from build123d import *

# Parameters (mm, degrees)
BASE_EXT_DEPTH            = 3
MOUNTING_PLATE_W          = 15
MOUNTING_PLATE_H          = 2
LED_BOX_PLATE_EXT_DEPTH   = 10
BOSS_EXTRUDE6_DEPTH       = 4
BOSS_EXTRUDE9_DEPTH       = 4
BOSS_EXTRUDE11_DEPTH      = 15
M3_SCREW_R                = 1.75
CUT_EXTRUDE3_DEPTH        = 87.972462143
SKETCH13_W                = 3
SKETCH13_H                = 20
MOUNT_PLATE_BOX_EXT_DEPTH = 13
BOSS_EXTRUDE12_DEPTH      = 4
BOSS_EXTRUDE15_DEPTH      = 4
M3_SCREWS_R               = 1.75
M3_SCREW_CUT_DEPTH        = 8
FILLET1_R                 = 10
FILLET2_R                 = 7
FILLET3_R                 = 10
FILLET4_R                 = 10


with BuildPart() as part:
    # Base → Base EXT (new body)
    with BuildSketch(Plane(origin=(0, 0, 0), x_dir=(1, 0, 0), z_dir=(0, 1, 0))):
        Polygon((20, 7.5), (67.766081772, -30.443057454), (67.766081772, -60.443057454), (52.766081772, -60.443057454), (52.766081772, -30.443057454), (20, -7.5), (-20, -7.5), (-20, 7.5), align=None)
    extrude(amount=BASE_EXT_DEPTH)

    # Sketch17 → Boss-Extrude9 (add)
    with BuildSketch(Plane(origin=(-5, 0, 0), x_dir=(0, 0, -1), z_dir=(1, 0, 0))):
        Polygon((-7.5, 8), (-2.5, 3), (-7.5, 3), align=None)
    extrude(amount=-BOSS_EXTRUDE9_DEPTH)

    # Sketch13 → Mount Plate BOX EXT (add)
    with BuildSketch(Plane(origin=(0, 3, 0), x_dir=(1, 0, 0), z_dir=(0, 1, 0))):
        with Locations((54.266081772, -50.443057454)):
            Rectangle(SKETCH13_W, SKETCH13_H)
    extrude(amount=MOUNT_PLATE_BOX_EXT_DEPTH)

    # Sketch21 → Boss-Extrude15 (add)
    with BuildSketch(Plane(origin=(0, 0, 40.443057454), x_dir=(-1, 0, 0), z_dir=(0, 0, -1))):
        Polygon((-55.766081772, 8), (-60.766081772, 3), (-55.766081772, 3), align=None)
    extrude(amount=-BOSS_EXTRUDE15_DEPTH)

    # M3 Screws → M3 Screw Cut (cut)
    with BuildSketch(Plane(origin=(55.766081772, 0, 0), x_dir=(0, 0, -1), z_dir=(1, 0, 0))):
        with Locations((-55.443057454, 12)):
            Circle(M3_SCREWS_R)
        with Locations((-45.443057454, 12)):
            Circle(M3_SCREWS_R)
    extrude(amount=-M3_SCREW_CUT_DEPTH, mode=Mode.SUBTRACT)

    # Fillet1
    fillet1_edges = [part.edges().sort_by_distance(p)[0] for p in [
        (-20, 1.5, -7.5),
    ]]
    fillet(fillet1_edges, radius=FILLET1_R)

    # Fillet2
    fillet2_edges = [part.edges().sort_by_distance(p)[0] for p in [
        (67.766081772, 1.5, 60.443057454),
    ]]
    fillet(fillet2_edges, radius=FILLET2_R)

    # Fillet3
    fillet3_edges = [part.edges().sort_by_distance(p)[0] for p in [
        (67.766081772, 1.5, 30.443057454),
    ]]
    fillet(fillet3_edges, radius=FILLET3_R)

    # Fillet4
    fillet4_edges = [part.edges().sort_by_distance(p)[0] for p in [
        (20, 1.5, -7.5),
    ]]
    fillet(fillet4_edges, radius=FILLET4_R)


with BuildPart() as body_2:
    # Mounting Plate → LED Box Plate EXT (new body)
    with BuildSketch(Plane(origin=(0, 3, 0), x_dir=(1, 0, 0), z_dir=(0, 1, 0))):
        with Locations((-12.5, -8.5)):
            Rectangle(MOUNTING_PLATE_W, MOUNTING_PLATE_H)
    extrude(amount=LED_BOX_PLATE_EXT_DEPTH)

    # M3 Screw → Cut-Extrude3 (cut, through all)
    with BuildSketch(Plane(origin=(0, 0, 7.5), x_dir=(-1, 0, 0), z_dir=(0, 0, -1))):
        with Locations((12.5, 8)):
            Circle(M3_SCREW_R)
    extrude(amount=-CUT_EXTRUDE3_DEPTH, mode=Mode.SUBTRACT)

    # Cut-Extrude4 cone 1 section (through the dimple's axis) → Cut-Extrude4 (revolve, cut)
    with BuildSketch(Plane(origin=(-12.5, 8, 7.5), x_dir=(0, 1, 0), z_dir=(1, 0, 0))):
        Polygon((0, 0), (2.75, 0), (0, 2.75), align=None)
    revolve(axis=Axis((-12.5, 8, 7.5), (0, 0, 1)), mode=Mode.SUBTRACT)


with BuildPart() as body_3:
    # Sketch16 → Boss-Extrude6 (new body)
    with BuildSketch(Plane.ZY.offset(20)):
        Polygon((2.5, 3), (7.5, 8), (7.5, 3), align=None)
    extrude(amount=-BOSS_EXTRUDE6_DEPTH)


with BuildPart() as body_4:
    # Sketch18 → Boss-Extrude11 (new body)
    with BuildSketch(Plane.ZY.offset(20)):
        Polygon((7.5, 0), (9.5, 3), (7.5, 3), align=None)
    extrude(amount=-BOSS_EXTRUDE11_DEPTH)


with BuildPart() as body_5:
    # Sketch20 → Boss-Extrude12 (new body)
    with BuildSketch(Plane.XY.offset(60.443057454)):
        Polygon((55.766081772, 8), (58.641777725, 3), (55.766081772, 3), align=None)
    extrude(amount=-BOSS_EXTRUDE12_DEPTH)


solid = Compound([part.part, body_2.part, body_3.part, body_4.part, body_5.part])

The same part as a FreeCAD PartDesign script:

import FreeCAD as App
import Part
import Sketcher
from FreeCAD import Vector
Q = App.Units.Quantity


def edges_at(feature, points):
    """Names of the edges that pass closest to the given points."""
    edges = feature.Shape.Edges
    near = lambda p: min(range(len(edges)), key=lambda i: edges[i].distToShape(Part.Vertex(*p))[0])
    return sorted({f"Edge{near(p) + 1}" for p in points})

doc = App.newDocument("Part")
body = doc.addObject("PartDesign::Body", "Body")

# Sketch on XZ plane
sketch1 = body.newObject("Sketcher::SketchObject", "Sketch")
sketch1.AttachmentSupport = (doc.getObject("XZ_Plane"), [""])
sketch1.MapMode = "FlatFace"
sketch1.addGeometry(Part.LineSegment(Vector(68, 30, 0), Vector(20, -8, 0)), False)
sketch1.addGeometry(Part.LineSegment(Vector(20, -8, 0), Vector(-20, -8, 0)), False)
sketch1.addGeometry(Part.LineSegment(Vector(-20, -8, 0), Vector(-20, 8, 0)), False)
sketch1.addGeometry(Part.LineSegment(Vector(-20, 8, 0), Vector(20, 8, 0)), False)
sketch1.addGeometry(Part.LineSegment(Vector(20, 8, 0), Vector(53, 30, 0)), False)
sketch1.addGeometry(Part.LineSegment(Vector(53, 30, 0), Vector(53, 60, 0)), False)
sketch1.addGeometry(Part.LineSegment(Vector(53, 60, 0), Vector(68, 60, 0)), False)
sketch1.addGeometry(Part.LineSegment(Vector(68, 60, 0), Vector(68, 30, 0)), False)
sketch1.addConstraint(Sketcher.Constraint("Coincident", 0, 2, 1, 1))
sketch1.addConstraint(Sketcher.Constraint("Coincident", 1, 2, 2, 1))
sketch1.addConstraint(Sketcher.Constraint("Coincident", 2, 2, 3, 1))
sketch1.addConstraint(Sketcher.Constraint("Coincident", 3, 2, 4, 1))
sketch1.addConstraint(Sketcher.Constraint("Coincident", 4, 2, 5, 1))
sketch1.addConstraint(Sketcher.Constraint("Coincident", 5, 2, 6, 1))
sketch1.addConstraint(Sketcher.Constraint("Coincident", 6, 2, 7, 1))
sketch1.addConstraint(Sketcher.Constraint("Coincident", 7, 2, 0, 1))
sketch1.addConstraint(Sketcher.Constraint("Horizontal", 1))
sketch1.addConstraint(Sketcher.Constraint("Vertical", 2))
sketch1.addConstraint(Sketcher.Constraint("Horizontal", 3))
sketch1.addConstraint(Sketcher.Constraint("Vertical", 5))
sketch1.addConstraint(Sketcher.Constraint("Horizontal", 6))
sketch1.addConstraint(Sketcher.Constraint("Vertical", 7))
sketch1.addConstraint(Sketcher.Constraint("Symmetric", 0, 2, 2, 2, -1, 1))
sketch1.addConstraint(Sketcher.Constraint("Horizontal", 4, 2, 7, 2))
sketch1.addConstraint(Sketcher.Constraint("Vertical", 0, 2, 3, 2))
sketch1.addConstraint(Sketcher.Constraint("Equal", 6, 2))
sketch1.addConstraint(Sketcher.Constraint("DistanceX", 1, 2, 1, 1, 40.0))
sketch1.addConstraint(Sketcher.Constraint("DistanceX", 6, 1, 6, 2, 15.0))
sketch1.addConstraint(Sketcher.Constraint("DistanceY", 5, 1, 5, 2, 30.0))
sketch1.addConstraint(Sketcher.Constraint("Angle", 4, Q("35 deg")))
sketch1.addConstraint(Sketcher.Constraint("Distance", 4, 40.0))
pad1 = body.newObject("PartDesign::Pad", "Pad")
pad1.Profile = sketch1
pad1.Length = 3
pad1.Reversed = True

# Sketch on YZ plane
sketch2 = body.newObject("Sketcher::SketchObject", "Sketch001")
sketch2.AttachmentSupport = (doc.getObject("YZ_Plane"), [""])
sketch2.MapMode = "FlatFace"
sketch2.AttachmentOffset = App.Placement(Vector(0, 0, -5), App.Rotation())
sketch2.addGeometry(Part.LineSegment(Vector(3, 2, 0), Vector(8, 8, 0)), False)
sketch2.addGeometry(Part.LineSegment(Vector(8, 8, 0), Vector(3, 8, 0)), False)
sketch2.addGeometry(Part.LineSegment(Vector(3, 8, 0), Vector(3, 2, 0)), False)
sketch2.addConstraint(Sketcher.Constraint("Coincident", 0, 2, 1, 1))
sketch2.addConstraint(Sketcher.Constraint("Coincident", 1, 2, 2, 1))
sketch2.addConstraint(Sketcher.Constraint("Coincident", 2, 2, 0, 1))
sketch2.addConstraint(Sketcher.Constraint("Horizontal", 1))
sketch2.addConstraint(Sketcher.Constraint("Vertical", 2))
sketch2.addConstraint(Sketcher.Constraint("Equal", 1, 2))
sketch2.addConstraint(Sketcher.Constraint("DistanceX", 1, 2, 1, 1, 5.0))
sketch2.addConstraint(Sketcher.Constraint("DistanceX", -1, 1, 0, 2, 8.0))
sketch2.addConstraint(Sketcher.Constraint("DistanceY", -1, 1, 0, 2, 7.5))
pad2 = body.newObject("PartDesign::Pad", "Pad001")
pad2.Profile = sketch2
pad2.Length = 4
pad2.Reversed = True

# Sketch on XZ plane
sketch3 = body.newObject("Sketcher::SketchObject", "Sketch002")
sketch3.AttachmentSupport = (doc.getObject("XZ_Plane"), [""])
sketch3.MapMode = "FlatFace"
sketch3.AttachmentOffset = App.Placement(Vector(0, 0, -3), App.Rotation())
sketch3.addGeometry(Part.LineSegment(Vector(52.8, 40.4, 0), Vector(52.8, 60.4, 0)), False)
sketch3.addGeometry(Part.LineSegment(Vector(52.8, 60.4, 0), Vector(55.8, 60.4, 0)), False)
sketch3.addGeometry(Part.LineSegment(Vector(55.8, 60.4, 0), Vector(55.8, 40.4, 0)), False)
sketch3.addGeometry(Part.LineSegment(Vector(55.8, 40.4, 0), Vector(52.8, 40.4, 0)), False)
sketch3.addConstraint(Sketcher.Constraint("Coincident", 0, 2, 1, 1))
sketch3.addConstraint(Sketcher.Constraint("Coincident", 1, 2, 2, 1))
sketch3.addConstraint(Sketcher.Constraint("Coincident", 2, 2, 3, 1))
sketch3.addConstraint(Sketcher.Constraint("Coincident", 3, 2, 0, 1))
sketch3.addConstraint(Sketcher.Constraint("Vertical", 0))
sketch3.addConstraint(Sketcher.Constraint("Horizontal", 1))
sketch3.addConstraint(Sketcher.Constraint("Vertical", 2))
sketch3.addConstraint(Sketcher.Constraint("Horizontal", 3))
sketch3.addConstraint(Sketcher.Constraint("DistanceX", 1, 1, 1, 2, 3.0))
sketch3.addConstraint(Sketcher.Constraint("DistanceY", 0, 1, 0, 2, 20.0))
sketch3.addConstraint(Sketcher.Constraint("DistanceX", -1, 1, 0, 2, 52.766082))
sketch3.addConstraint(Sketcher.Constraint("DistanceY", -1, 1, 0, 2, 60.443057))
pad3 = body.newObject("PartDesign::Pad", "Pad002")
pad3.Profile = sketch3
pad3.Length = 13
pad3.Reversed = True

# Sketch on XY plane
sketch4 = body.newObject("Sketcher::SketchObject", "Sketch003")
sketch4.AttachmentSupport = (doc.getObject("XY_Plane"), [""])
sketch4.MapMode = "FlatFace"
sketch4.AttachmentOffset = App.Placement(Vector(0, 0, 40.443057), App.Rotation())
sketch4.addGeometry(Part.LineSegment(Vector(56, 8, 0), Vector(61, 3, 0)), False)
sketch4.addGeometry(Part.LineSegment(Vector(61, 3, 0), Vector(56, 3, 0)), False)
sketch4.addGeometry(Part.LineSegment(Vector(56, 3, 0), Vector(56, 8, 0)), False)
sketch4.addConstraint(Sketcher.Constraint("Coincident", 0, 2, 1, 1))
sketch4.addConstraint(Sketcher.Constraint("Coincident", 1, 2, 2, 1))
sketch4.addConstraint(Sketcher.Constraint("Coincident", 2, 2, 0, 1))
sketch4.addConstraint(Sketcher.Constraint("Horizontal", 1))
sketch4.addConstraint(Sketcher.Constraint("Vertical", 2))
sketch4.addConstraint(Sketcher.Constraint("Equal", 1, 2))
sketch4.addConstraint(Sketcher.Constraint("DistanceX", 1, 2, 1, 1, 5.0))
sketch4.addConstraint(Sketcher.Constraint("DistanceY", -1, 1, 0, 2, 3.0))
sketch4.addConstraint(Sketcher.Constraint("DistanceX", -1, 1, 0, 2, 60.766082))
pad4 = body.newObject("PartDesign::Pad", "Pad003")
pad4.Profile = sketch4
pad4.Length = 4

# Sketch on YZ plane
sketch5 = body.newObject("Sketcher::SketchObject", "Sketch004")
sketch5.AttachmentSupport = (doc.getObject("YZ_Plane"), [""])
sketch5.MapMode = "FlatFace"
sketch5.AttachmentOffset = App.Placement(Vector(0, 0, 55.766082), App.Rotation())
sketch5.addGeometry(Part.Circle(Vector(12, 55.4, 0), Vector(0, 0, 1), 1.8), False)
sketch5.addGeometry(Part.Circle(Vector(12, 45.4, 0), Vector(0, 0, 1), 1.8), False)
sketch5.addConstraint(Sketcher.Constraint("Equal", 0, 1))
sketch5.addConstraint(Sketcher.Constraint("Vertical", 0, 3, 1, 3))
sketch5.addConstraint(Sketcher.Constraint("Diameter", 0, 3.5))
sketch5.addConstraint(Sketcher.Constraint("DistanceX", -1, 1, 0, 3, 12.0))
sketch5.addConstraint(Sketcher.Constraint("DistanceY", 1, 3, 0, 3, 10.0))
sketch5.addConstraint(Sketcher.Constraint("DistanceY", -1, 1, 0, 3, 55.443057))
pocket1 = body.newObject("PartDesign::Pocket", "Pocket")
pocket1.Profile = sketch5
pocket1.Length = 8
doc.recompute()

fillet = body.newObject("PartDesign::Fillet", "Fillet")
fillet.Base = (pocket1, edges_at(pocket1, [(-20, 1.5, -7.5)]))
fillet.Radius = 10
doc.recompute()

fillet2 = body.newObject("PartDesign::Fillet", "Fillet001")
fillet2.Base = (fillet, edges_at(fillet, [(67.766, 1.5, 60.443)]))
fillet2.Radius = 7
doc.recompute()

fillet3 = body.newObject("PartDesign::Fillet", "Fillet002")
fillet3.Base = (fillet2, edges_at(fillet2, [(67.766, 1.5, 30.443)]))
fillet3.Radius = 10
doc.recompute()

fillet4 = body.newObject("PartDesign::Fillet", "Fillet003")
fillet4.Base = (fillet3, edges_at(fillet3, [(20, 1.5, -7.5)]))
fillet4.Radius = 10
body2 = doc.addObject("PartDesign::Body", "Body001")

# Sketch on XZ plane
sketch6 = body2.newObject("Sketcher::SketchObject", "Sketch005")
sketch6.AttachmentSupport = (doc.getObject("XZ_Plane001"), [""])
sketch6.MapMode = "FlatFace"
sketch6.AttachmentOffset = App.Placement(Vector(0, 0, -3), App.Rotation())
sketch6.addGeometry(Part.LineSegment(Vector(-20, 7.5, 0), Vector(-20, 9.5, 0)), False)
sketch6.addGeometry(Part.LineSegment(Vector(-20, 9.5, 0), Vector(-5, 9.5, 0)), False)
sketch6.addGeometry(Part.LineSegment(Vector(-5, 9.5, 0), Vector(-5, 7.5, 0)), False)
sketch6.addGeometry(Part.LineSegment(Vector(-5, 7.5, 0), Vector(-20, 7.5, 0)), False)
sketch6.addConstraint(Sketcher.Constraint("Coincident", 0, 2, 1, 1))
sketch6.addConstraint(Sketcher.Constraint("Coincident", 1, 2, 2, 1))
sketch6.addConstraint(Sketcher.Constraint("Coincident", 2, 2, 3, 1))
sketch6.addConstraint(Sketcher.Constraint("Coincident", 3, 2, 0, 1))
sketch6.addConstraint(Sketcher.Constraint("Vertical", 0))
sketch6.addConstraint(Sketcher.Constraint("Horizontal", 1))
sketch6.addConstraint(Sketcher.Constraint("Vertical", 2))
sketch6.addConstraint(Sketcher.Constraint("Horizontal", 3))
sketch6.addConstraint(Sketcher.Constraint("DistanceX", 1, 1, 1, 2, 15.0))
sketch6.addConstraint(Sketcher.Constraint("DistanceY", 0, 1, 0, 2, 2.0))
sketch6.addConstraint(Sketcher.Constraint("DistanceX", 0, 2, -1, 1, 20.0))
sketch6.addConstraint(Sketcher.Constraint("DistanceY", -1, 1, 0, 2, 9.5))
pad5 = body2.newObject("PartDesign::Pad", "Pad004")
pad5.Profile = sketch6
pad5.Length = 10
pad5.Reversed = True

# Sketch on XY plane
sketch7 = body2.newObject("Sketcher::SketchObject", "Sketch006")
sketch7.AttachmentSupport = (doc.getObject("XY_Plane001"), [""])
sketch7.MapMode = "FlatFace"
sketch7.AttachmentOffset = App.Placement(Vector(0, 0, 7.5), App.Rotation())
sketch7.addGeometry(Part.Circle(Vector(-12.5, 8, 0), Vector(0, 0, 1), 1.8), False)
sketch7.addConstraint(Sketcher.Constraint("Diameter", 0, 3.5))
sketch7.addConstraint(Sketcher.Constraint("DistanceY", -1, 1, 0, 3, 8.0))
sketch7.addConstraint(Sketcher.Constraint("DistanceX", 0, 3, -1, 1, 12.5))
pocket2 = body2.newObject("PartDesign::Pocket", "Pocket001")
pocket2.Profile = sketch7
pocket2.Type = "ThroughAll"
pocket2.Reversed = True

# Sketch on YZ plane
sketch8 = body2.newObject("Sketcher::SketchObject", "Sketch007")
sketch8.AttachmentSupport = (doc.getObject("YZ_Plane001"), [""])
sketch8.MapMode = "FlatFace"
sketch8.AttachmentOffset = App.Placement(Vector(0, 0, -12.5), App.Rotation())
sketch8.addGeometry(Part.LineSegment(Vector(8, 7.5, 0), Vector(10.8, 7.5, 0)), False)
sketch8.addGeometry(Part.LineSegment(Vector(10.8, 7.5, 0), Vector(8, 10.2, 0)), False)
sketch8.addGeometry(Part.LineSegment(Vector(8, 10.2, 0), Vector(8, 7.5, 0)), False)
sketch8.addGeometry(Part.LineSegment(Vector(8, 7.5, 0), Vector(8, 10.2, 0)), True)  # axis
sketch8.addConstraint(Sketcher.Constraint("Coincident", 0, 2, 1, 1))
sketch8.addConstraint(Sketcher.Constraint("Coincident", 1, 2, 2, 1))
sketch8.addConstraint(Sketcher.Constraint("Coincident", 2, 2, 0, 1))
sketch8.addConstraint(Sketcher.Constraint("Horizontal", 0))
sketch8.addConstraint(Sketcher.Constraint("Vertical", 2))
sketch8.addConstraint(Sketcher.Constraint("Vertical", 3))
sketch8.addConstraint(Sketcher.Constraint("Coincident", 3, 1, 2, 2))
sketch8.addConstraint(Sketcher.Constraint("Equal", 0, 2))
sketch8.addConstraint(Sketcher.Constraint("Equal", 2, 3))
sketch8.addConstraint(Sketcher.Constraint("DistanceX", -1, 1, 1, 2, 8.0))
sketch8.addConstraint(Sketcher.Constraint("DistanceX", 0, 1, 0, 2, 2.75))
sketch8.addConstraint(Sketcher.Constraint("DistanceY", -1, 1, 0, 2, 7.5))
groove = body2.newObject("PartDesign::Groove", "Groove")
groove.Profile = sketch8
groove.ReferenceAxis = (sketch8, ["Axis0"])
groove.Angle = 360
body3 = doc.addObject("PartDesign::Body", "Body002")

# Sketch on YZ plane
sketch9 = body3.newObject("Sketcher::SketchObject", "Sketch008")
sketch9.AttachmentSupport = (doc.getObject("YZ_Plane002"), [""])
sketch9.MapMode = "FlatFace"
sketch9.AttachmentOffset = App.Placement(Vector(0, 0, -20), App.Rotation())
sketch9.addGeometry(Part.LineSegment(Vector(8, 8, 0), Vector(3, 2, 0)), False)
sketch9.addGeometry(Part.LineSegment(Vector(3, 2, 0), Vector(3, 8, 0)), False)
sketch9.addGeometry(Part.LineSegment(Vector(3, 8, 0), Vector(8, 8, 0)), False)
sketch9.addConstraint(Sketcher.Constraint("Coincident", 0, 2, 1, 1))
sketch9.addConstraint(Sketcher.Constraint("Coincident", 1, 2, 2, 1))
sketch9.addConstraint(Sketcher.Constraint("Coincident", 2, 2, 0, 1))
sketch9.addConstraint(Sketcher.Constraint("Vertical", 1))
sketch9.addConstraint(Sketcher.Constraint("Horizontal", 2))
sketch9.addConstraint(Sketcher.Constraint("Equal", 2, 1))
sketch9.addConstraint(Sketcher.Constraint("DistanceX", 2, 1, 2, 2, 5.0))
sketch9.addConstraint(Sketcher.Constraint("DistanceX", -1, 1, 0, 2, 3.0))
sketch9.addConstraint(Sketcher.Constraint("DistanceY", -1, 1, 0, 2, 2.5))
pad6 = body3.newObject("PartDesign::Pad", "Pad005")
pad6.Profile = sketch9
pad6.Length = 4
body4 = doc.addObject("PartDesign::Body", "Body003")

# Sketch on YZ plane
sketch10 = body4.newObject("Sketcher::SketchObject", "Sketch009")
sketch10.AttachmentSupport = (doc.getObject("YZ_Plane003"), [""])
sketch10.MapMode = "FlatFace"
sketch10.AttachmentOffset = App.Placement(Vector(0, 0, -20), App.Rotation())
sketch10.addGeometry(Part.LineSegment(Vector(0, 7.5, 0), Vector(3, 9.5, 0)), False)
sketch10.addGeometry(Part.LineSegment(Vector(3, 9.5, 0), Vector(3, 7.5, 0)), False)
sketch10.addGeometry(Part.LineSegment(Vector(3, 7.5, 0), Vector(0, 7.5, 0)), False)
sketch10.addConstraint(Sketcher.Constraint("Coincident", 0, 2, 1, 1))
sketch10.addConstraint(Sketcher.Constraint("Coincident", 1, 2, 2, 1))
sketch10.addConstraint(Sketcher.Constraint("Coincident", 2, 2, 0, 1))
sketch10.addConstraint(Sketcher.Constraint("Vertical", 1))
sketch10.addConstraint(Sketcher.Constraint("Horizontal", 2))
sketch10.addConstraint(Sketcher.Constraint("PointOnObject", 2, 2, -2))
sketch10.addConstraint(Sketcher.Constraint("DistanceX", 2, 2, 2, 1, 3.0))
sketch10.addConstraint(Sketcher.Constraint("DistanceY", 1, 2, 1, 1, 2.0))
sketch10.addConstraint(Sketcher.Constraint("DistanceY", -1, 1, 0, 2, 9.5))
pad7 = body4.newObject("PartDesign::Pad", "Pad006")
pad7.Profile = sketch10
pad7.Length = 15
body5 = doc.addObject("PartDesign::Body", "Body004")

# Sketch on XY plane
sketch11 = body5.newObject("Sketcher::SketchObject", "Sketch010")
sketch11.AttachmentSupport = (doc.getObject("XY_Plane004"), [""])
sketch11.MapMode = "FlatFace"
sketch11.AttachmentOffset = App.Placement(Vector(0, 0, 60.443057), App.Rotation())
sketch11.addGeometry(Part.LineSegment(Vector(58.6, 3, 0), Vector(55.8, 8, 0)), False)
sketch11.addGeometry(Part.LineSegment(Vector(55.8, 8, 0), Vector(55.8, 3, 0)), False)
sketch11.addGeometry(Part.LineSegment(Vector(55.8, 3, 0), Vector(58.6, 3, 0)), False)
sketch11.addConstraint(Sketcher.Constraint("Coincident", 0, 2, 1, 1))
sketch11.addConstraint(Sketcher.Constraint("Coincident", 1, 2, 2, 1))
sketch11.addConstraint(Sketcher.Constraint("Coincident", 2, 2, 0, 1))
sketch11.addConstraint(Sketcher.Constraint("Vertical", 1))
sketch11.addConstraint(Sketcher.Constraint("Horizontal", 2))
sketch11.addConstraint(Sketcher.Constraint("DistanceY", 1, 2, 1, 1, 5.0))
sketch11.addConstraint(Sketcher.Constraint("DistanceY", -1, 1, 0, 2, 8.0))
sketch11.addConstraint(Sketcher.Constraint("DistanceX", 2, 1, 2, 2, 2.875696))
sketch11.addConstraint(Sketcher.Constraint("DistanceX", -1, 1, 0, 2, 55.766082))
pad8 = body5.newObject("PartDesign::Pad", "Pad007")
pad8.Profile = sketch11
pad8.Length = 4
pad8.Reversed = True

doc.recompute()
